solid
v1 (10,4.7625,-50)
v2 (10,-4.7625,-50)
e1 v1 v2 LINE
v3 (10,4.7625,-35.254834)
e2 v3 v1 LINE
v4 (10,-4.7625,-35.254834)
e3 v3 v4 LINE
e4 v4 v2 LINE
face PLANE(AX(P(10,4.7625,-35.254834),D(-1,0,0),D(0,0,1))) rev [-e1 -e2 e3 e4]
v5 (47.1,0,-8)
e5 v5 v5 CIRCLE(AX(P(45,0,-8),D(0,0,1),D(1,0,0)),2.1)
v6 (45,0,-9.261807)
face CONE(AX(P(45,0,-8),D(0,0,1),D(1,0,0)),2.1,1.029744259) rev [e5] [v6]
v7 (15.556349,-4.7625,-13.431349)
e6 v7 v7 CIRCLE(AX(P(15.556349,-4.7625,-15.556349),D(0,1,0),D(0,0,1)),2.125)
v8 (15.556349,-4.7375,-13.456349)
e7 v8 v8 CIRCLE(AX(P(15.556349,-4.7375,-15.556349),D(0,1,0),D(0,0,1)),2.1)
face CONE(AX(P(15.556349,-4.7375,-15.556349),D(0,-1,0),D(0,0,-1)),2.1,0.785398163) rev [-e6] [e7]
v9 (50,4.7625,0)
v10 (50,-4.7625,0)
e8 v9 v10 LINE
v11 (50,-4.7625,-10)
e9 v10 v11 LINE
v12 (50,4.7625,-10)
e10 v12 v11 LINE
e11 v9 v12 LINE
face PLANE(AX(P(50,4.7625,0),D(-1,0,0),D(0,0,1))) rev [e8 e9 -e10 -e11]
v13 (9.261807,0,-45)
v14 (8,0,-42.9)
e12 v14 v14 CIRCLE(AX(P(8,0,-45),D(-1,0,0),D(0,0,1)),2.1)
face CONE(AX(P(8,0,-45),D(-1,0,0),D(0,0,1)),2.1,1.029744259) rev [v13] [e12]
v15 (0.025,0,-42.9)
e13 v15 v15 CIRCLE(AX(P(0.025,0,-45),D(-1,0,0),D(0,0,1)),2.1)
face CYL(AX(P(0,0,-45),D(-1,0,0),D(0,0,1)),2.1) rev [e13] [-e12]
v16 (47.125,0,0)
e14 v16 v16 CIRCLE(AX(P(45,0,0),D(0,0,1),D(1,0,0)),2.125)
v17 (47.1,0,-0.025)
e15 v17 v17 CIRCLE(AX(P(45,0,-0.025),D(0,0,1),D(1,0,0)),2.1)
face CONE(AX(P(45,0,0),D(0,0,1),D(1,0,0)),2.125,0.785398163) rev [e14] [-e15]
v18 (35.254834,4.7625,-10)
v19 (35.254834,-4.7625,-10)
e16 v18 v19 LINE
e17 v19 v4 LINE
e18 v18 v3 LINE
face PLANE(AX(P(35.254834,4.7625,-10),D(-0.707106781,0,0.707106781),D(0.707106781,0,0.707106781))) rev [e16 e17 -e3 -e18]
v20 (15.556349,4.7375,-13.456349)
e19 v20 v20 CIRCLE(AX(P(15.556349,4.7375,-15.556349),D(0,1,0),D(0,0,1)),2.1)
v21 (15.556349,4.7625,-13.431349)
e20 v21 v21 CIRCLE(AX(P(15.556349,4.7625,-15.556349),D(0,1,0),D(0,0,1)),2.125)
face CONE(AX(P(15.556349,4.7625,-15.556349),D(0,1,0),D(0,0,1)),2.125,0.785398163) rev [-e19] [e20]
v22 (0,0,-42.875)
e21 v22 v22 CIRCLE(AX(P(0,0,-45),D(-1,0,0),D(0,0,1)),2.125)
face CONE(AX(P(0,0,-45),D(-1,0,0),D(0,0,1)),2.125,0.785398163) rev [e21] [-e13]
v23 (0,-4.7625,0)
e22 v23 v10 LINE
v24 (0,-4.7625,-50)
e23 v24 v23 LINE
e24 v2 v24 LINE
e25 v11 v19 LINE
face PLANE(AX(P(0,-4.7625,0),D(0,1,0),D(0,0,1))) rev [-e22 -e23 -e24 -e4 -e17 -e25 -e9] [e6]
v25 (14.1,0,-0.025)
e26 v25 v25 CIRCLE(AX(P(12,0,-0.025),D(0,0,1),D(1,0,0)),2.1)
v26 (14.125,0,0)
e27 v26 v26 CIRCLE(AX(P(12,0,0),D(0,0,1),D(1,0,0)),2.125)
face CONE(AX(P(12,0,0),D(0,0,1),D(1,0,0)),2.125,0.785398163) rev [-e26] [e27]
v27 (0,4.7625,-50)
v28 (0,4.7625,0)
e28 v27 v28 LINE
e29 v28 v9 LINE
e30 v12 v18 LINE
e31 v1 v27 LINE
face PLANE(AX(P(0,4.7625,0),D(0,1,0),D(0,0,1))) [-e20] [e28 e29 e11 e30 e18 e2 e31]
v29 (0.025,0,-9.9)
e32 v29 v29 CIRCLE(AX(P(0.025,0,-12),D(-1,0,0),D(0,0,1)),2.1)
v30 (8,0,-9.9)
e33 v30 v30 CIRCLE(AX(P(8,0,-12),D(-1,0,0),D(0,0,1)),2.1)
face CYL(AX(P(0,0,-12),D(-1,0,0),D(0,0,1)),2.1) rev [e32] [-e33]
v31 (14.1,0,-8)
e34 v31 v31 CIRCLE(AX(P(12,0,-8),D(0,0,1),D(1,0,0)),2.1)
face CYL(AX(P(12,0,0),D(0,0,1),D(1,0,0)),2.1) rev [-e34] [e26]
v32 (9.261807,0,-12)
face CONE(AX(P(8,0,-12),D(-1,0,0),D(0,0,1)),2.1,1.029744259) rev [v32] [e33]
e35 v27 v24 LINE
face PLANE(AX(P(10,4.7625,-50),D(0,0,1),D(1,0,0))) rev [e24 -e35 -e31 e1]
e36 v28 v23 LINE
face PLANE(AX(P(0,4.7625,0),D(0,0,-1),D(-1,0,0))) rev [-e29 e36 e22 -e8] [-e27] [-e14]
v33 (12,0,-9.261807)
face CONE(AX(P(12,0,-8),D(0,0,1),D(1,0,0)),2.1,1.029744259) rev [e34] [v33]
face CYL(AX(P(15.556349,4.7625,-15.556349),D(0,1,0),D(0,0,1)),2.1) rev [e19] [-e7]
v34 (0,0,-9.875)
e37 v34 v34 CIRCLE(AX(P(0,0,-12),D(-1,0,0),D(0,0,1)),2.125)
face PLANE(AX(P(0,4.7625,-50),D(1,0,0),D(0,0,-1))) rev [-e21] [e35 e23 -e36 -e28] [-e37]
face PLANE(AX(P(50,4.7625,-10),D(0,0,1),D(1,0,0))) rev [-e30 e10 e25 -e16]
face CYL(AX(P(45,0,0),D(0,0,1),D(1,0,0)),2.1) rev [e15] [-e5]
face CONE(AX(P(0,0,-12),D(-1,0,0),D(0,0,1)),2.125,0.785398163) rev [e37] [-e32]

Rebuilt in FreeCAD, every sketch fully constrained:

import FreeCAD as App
import Part
import Sketcher
Q = App.Units.Quantity


def add_polygon(sketch, points):
    """Adds a closed chain of lines whose ends are joined by coincident constraints."""
    first, n = sketch.GeometryCount, len(points)
    for a, b in zip(points, points[1:] + points[:1]):
        sketch.addGeometry(Part.LineSegment(App.Vector(*a, 0), App.Vector(*b, 0)), False)
    for i in range(n):
        sketch.addConstraint(Sketcher.Constraint("Coincident", first + i, 2, first + (i + 1) % n, 1))

doc = App.newDocument("Part")
params = doc.addObject("Spreadsheet::Sheet", "Params")
for row, (alias, value) in enumerate([
    ("sketch1_width", "50 mm"),
    ("sketch1_width2", "10 mm"),
    ("pad1_length", "9.525 mm"),
    ("groove_angle", "360 deg"),
    ("linearpattern_pitch", "33 mm"),
    ("groove2_angle", "360 deg"),
    ("groove3_angle", "360 deg"),
], start=1):
    params.set(f"A{row}", alias)
    params.set(f"B{row}", "=" + value)
    params.setAlias(f"B{row}", alias)

body = doc.addObject("PartDesign::Body", "Body")

sketch1 = body.newObject("Sketcher::SketchObject", "Sketch")
sketch1.AttachmentSupport = (doc.getObject("XZ_Plane"), [""])
sketch1.MapMode = "FlatFace"
add_polygon(sketch1, [(0, 0), (50, 0), (50, -10), (35, -10), (10, -35), (10, -50), (0, -50)])
sketch1.addConstraint([
    Sketcher.Constraint("Horizontal", 0),
    Sketcher.Constraint("Vertical", 1),
    Sketcher.Constraint("Horizontal", 2),
    Sketcher.Constraint("Vertical", 4),
    Sketcher.Constraint("Horizontal", 5),
    Sketcher.Constraint("Vertical", 6),
    Sketcher.Constraint("Coincident", 6, 2, -1, 1),
    Sketcher.Constraint("Equal", 5, 1),
    Sketcher.Constraint("Equal", 2, 4),
    Sketcher.Constraint("Equal", 0, 6),
    Sketcher.Constraint("DistanceX", 0, 1, 0, 2, Q("50 mm")),
    Sketcher.Constraint("DistanceX", 5, 2, 5, 1, Q("10 mm")),
    Sketcher.Constraint("Distance", 3, Q("35.715729 mm")),
])
sketch1.setExpression("Constraints[17]", "Params.sketch1_width")
sketch1.setExpression("Constraints[18]", "Params.sketch1_width2")
pad1 = body.newObject("PartDesign::Pad", "Pad")
pad1.Profile = sketch1
pad1.setExpression("Length", "Params.pad1_length")
pad1.Midplane = True

sketch2 = body.newObject("Sketcher::SketchObject", "Sketch001")
sketch2.AttachmentSupport = (doc.getObject("YZ_Plane"), [""])
sketch2.MapMode = "FlatFace"
sketch2.AttachmentOffset = App.Placement(App.Vector(0, 0, 12), App.Rotation())
add_polygon(sketch2, [(0, -9.262), (0, 0), (-2.125, 0), (-2.1, -0.025), (-2.1, -8)])
sketch2.addConstraint([
    Sketcher.Constraint("Vertical", 0),
    Sketcher.Constraint("Horizontal", 1),
    Sketcher.Constraint("Vertical", 3),
    Sketcher.Constraint("Coincident", 0, 2, -1, 1),
    Sketcher.Constraint("Angle", 2, Q("-45 deg")),
    Sketcher.Constraint("Angle", 4, Q("-31 deg")),
    Sketcher.Constraint("DistanceY", 3, 2, -1, 1, Q("8 mm")),
    Sketcher.Constraint("DistanceX", 2, 2, -1, 1, Q("2.1 mm")),
    Sketcher.Constraint("DistanceX", 1, 2, 1, 1, Q("2.125 mm")),
])
groove = body.newObject("PartDesign::Groove", "Groove")
groove.Profile = sketch2
groove.ReferenceAxis = (sketch2, ["V_Axis"])
groove.setExpression("Angle", "Params.groove_angle")
doc.recompute()

linearpattern = body.newObject("PartDesign::LinearPattern", "LinearPattern")
linearpattern.Originals = [groove]
linearpattern.Direction = (doc.getObject("X_Axis"), [""])
linearpattern.Mode = "offset"
linearpattern.setExpression("Offset", "Params.linearpattern_pitch")
linearpattern.Occurrences = 2
body.Tip = linearpattern
doc.recompute()

datumplane = body.newObject("PartDesign::Plane", "DatumPlane")
datumplane.Placement = App.Placement(App.Vector(0, 0, 0), App.Rotation(App.Vector(-0.707106781, 0, 0.707106781), App.Vector(0, -1, 0), App.Vector(0.707106781, 0, 0.707106781), "ZXY"))
mirrored = body.newObject("PartDesign::Mirrored", "Mirrored")
mirrored.Originals = [groove]
mirrored.MirrorPlane = (datumplane, [""])
body.Tip = mirrored

sketch3 = body.newObject("Sketcher::SketchObject", "Sketch002")
sketch3.AttachmentSupport = (doc.getObject("XY_Plane"), [""])
sketch3.MapMode = "FlatFace"
sketch3.AttachmentOffset = App.Placement(App.Vector(0, 0, -45), App.Rotation())
add_polygon(sketch3, [(0, 0), (9.262, 0), (8, -2.1), (0.025, -2.1), (0, -2.125)])
sketch3.addConstraint([
    Sketcher.Constraint("Horizontal", 0),
    Sketcher.Constraint("Horizontal", 2),
    Sketcher.Constraint("Vertical", 4),
    Sketcher.Constraint("Coincident", 4, 2, -1, 1),
    Sketcher.Constraint("Angle", 1, Q("-121 deg")),
    Sketcher.Constraint("Angle", 3, Q("-135 deg")),
    Sketcher.Constraint("DistanceX", -1, 1, 1, 2, Q("8 mm")),
    Sketcher.Constraint("DistanceY", 1, 2, -1, 1, Q("2.1 mm")),
    Sketcher.Constraint("DistanceX", 2, 2, 2, 1, Q("7.975 mm")),
])
groove2 = body.newObject("PartDesign::Groove", "Groove001")
groove2.Profile = sketch3
groove2.ReferenceAxis = (sketch3, ["H_Axis"])
groove2.setExpression("Angle", "Params.groove2_angle")

sketch4 = body.newObject("Sketcher::SketchObject", "Sketch003")
sketch4.AttachmentSupport = (doc.getObject("YZ_Plane"), [""])
sketch4.MapMode = "FlatFace"
sketch4.AttachmentOffset = App.Placement(App.Vector(0, 0, 15.556349), App.Rotation())
add_polygon(sketch4, [(-4.763, -15.556), (4.763, -15.556), (4.763, -13.431), (4.737, -13.456), (-4.737, -13.456), (-4.763, -13.431)])
sketch4.addGeometry(Part.LineSegment(App.Vector(4.763, -15.556, 0), App.Vector(-4.763, -15.556, 0)), True)
sketch4.addConstraint([
    Sketcher.Constraint("Horizontal", 0),
    Sketcher.Constraint("Vertical", 1),
    Sketcher.Constraint("Horizontal", 3),
    Sketcher.Constraint("Vertical", 5),
    Sketcher.Constraint("Horizontal", 6),
    Sketcher.Constraint("Coincident", 6, 1, 0, 2),
    Sketcher.Constraint("Symmetric", 1, 2, 4, 2, -2),
    Sketcher.Constraint("Perpendicular", 2, 4),
    Sketcher.Constraint("Vertical", 4, 2, 6, 2),
    Sketcher.Constraint("Equal", 2, 4),
    Sketcher.Constraint("DistanceY", 0, 2, 2, 2, Q("2.1 mm")),
    Sketcher.Constraint("DistanceX", 3, 2, 1, 2, Q("9.5 mm")),
    Sketcher.Constraint("DistanceX", 0, 1, 0, 2, Q("9.525 mm")),
    Sketcher.Constraint("DistanceY", 0, 2, -1, 1, Q("15.556349 mm")),
])
groove3 = body.newObject("PartDesign::Groove", "Groove002")
groove3.Profile = sketch4
groove3.ReferenceAxis = (sketch4, ["Axis0"])
groove3.setExpression("Angle", "Params.groove3_angle")

doc.recompute()
